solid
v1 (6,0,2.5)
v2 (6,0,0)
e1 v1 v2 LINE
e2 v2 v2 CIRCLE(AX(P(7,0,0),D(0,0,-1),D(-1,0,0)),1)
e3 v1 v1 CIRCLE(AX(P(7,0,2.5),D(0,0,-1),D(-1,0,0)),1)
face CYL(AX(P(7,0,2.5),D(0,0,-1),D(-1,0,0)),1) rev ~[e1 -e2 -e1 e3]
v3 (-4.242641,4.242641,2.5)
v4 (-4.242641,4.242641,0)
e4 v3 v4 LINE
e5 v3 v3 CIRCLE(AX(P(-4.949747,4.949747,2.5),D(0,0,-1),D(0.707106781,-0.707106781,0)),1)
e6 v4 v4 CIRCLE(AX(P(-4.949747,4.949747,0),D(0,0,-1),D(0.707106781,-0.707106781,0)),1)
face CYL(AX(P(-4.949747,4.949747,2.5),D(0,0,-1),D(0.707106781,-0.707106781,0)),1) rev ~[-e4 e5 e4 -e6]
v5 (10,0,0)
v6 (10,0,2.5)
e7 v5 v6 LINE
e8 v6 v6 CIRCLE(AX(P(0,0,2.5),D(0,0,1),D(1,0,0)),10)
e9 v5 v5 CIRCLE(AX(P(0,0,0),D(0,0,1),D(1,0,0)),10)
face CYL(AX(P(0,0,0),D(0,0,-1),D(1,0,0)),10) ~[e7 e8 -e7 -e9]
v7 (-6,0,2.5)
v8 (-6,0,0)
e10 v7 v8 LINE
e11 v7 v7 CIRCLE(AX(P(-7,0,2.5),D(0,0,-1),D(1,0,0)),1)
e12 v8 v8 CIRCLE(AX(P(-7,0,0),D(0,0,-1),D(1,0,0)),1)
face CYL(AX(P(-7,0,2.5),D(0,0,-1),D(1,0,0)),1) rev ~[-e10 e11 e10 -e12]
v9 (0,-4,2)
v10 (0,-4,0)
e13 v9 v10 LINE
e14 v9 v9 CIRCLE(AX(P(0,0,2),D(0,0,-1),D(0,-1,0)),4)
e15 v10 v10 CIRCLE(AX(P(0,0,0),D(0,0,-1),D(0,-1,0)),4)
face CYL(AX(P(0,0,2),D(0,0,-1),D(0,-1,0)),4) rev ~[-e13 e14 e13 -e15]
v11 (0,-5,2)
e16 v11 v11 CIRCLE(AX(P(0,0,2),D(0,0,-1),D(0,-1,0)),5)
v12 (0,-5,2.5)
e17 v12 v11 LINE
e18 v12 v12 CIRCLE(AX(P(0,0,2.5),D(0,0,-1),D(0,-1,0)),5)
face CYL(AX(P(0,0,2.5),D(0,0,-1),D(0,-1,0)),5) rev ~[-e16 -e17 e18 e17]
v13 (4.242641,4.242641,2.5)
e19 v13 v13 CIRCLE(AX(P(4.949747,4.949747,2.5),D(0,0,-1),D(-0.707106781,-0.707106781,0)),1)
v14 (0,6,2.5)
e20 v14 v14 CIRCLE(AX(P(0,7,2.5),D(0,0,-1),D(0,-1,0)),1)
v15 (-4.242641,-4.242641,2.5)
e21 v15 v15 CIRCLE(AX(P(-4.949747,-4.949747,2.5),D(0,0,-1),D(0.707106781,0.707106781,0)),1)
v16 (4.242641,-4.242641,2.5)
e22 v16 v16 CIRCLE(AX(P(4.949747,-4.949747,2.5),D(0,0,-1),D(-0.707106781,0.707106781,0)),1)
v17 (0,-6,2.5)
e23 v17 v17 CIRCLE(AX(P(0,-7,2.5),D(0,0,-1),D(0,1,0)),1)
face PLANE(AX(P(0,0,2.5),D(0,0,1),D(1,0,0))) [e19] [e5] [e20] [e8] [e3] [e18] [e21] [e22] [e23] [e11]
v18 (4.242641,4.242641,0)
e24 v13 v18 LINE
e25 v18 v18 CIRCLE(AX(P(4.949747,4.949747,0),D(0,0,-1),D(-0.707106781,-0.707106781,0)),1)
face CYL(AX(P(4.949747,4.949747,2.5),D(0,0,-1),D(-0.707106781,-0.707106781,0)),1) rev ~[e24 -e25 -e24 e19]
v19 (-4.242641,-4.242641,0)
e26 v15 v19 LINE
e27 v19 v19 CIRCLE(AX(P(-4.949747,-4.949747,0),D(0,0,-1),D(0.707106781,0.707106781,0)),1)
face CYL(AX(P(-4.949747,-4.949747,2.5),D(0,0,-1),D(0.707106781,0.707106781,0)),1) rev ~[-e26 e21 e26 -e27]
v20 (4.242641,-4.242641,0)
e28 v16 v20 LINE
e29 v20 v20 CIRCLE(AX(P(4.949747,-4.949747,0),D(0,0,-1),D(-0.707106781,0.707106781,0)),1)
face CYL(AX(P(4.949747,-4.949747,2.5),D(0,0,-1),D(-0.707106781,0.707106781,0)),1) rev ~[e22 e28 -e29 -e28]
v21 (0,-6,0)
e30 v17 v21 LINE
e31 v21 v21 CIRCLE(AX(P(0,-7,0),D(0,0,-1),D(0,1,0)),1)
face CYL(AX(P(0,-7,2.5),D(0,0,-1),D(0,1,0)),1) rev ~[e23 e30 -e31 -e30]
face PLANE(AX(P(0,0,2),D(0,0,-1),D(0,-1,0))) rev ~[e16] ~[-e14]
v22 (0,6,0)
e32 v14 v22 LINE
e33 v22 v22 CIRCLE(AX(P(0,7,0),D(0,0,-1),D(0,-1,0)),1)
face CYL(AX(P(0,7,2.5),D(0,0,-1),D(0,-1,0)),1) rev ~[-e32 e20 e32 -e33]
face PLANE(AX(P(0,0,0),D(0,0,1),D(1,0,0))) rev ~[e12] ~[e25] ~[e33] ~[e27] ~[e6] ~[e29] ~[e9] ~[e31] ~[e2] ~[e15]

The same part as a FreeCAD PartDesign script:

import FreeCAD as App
import Part
import Sketcher
from FreeCAD import Vector

doc = App.newDocument("Part")
body = doc.addObject("PartDesign::Body", "Body")

sketch1 = body.newObject("Sketcher::SketchObject", "Sketch")
sketch1.AttachmentSupport = (doc.getObject("XY_Plane"), [""])
sketch1.MapMode = "FlatFace"
sketch1.addGeometry(Part.Circle(Vector(0, 0, 0), Vector(0, 0, 1), 10), False)
sketch1.addConstraint(Sketcher.Constraint("Coincident", 0, 3, -1, 1))
sketch1.addConstraint(Sketcher.Constraint("Diameter", 0, 20.0))
pad1 = body.newObject("PartDesign::Pad", "Pad")
pad1.Profile = sketch1
pad1.Length = 2.5

sketch2 = body.newObject("Sketcher::SketchObject", "Sketch001")
sketch2.AttachmentSupport = (doc.getObject("XY_Plane"), [""])
sketch2.MapMode = "FlatFace"
sketch2.AttachmentOffset = App.Placement(Vector(0, 0, 2.5), App.Rotation())
sketch2.addGeometry(Part.Circle(Vector(0, 0, 0), Vector(0, 0, 1), 5), False)
sketch2.addConstraint(Sketcher.Constraint("Coincident", 0, 3, -1, 1))
sketch2.addConstraint(Sketcher.Constraint("Diameter", 0, 10.0))
doc.recompute()
hole = body.newObject("PartDesign::Hole", "Hole")
hole.Profile = sketch2
hole.ThreadType = "None"
hole.Diameter = 10
hole.DepthType = "Dimension"
hole.Depth = 0.5
hole.DrillPoint = "Flat"

sketch3 = body.newObject("Sketcher::SketchObject", "Sketch002")
sketch3.AttachmentSupport = (doc.getObject("XY_Plane"), [""])
sketch3.MapMode = "FlatFace"
sketch3.AttachmentOffset = App.Placement(Vector(0, 0, 2), App.Rotation())
sketch3.addGeometry(Part.Circle(Vector(0, 0, 0), Vector(0, 0, 1), 4), False)
sketch3.addConstraint(Sketcher.Constraint("Coincident", 0, 3, -1, 1))
sketch3.addConstraint(Sketcher.Constraint("Diameter", 0, 8.0))
doc.recompute()
hole2 = body.newObject("PartDesign::Hole", "Hole001")
hole2.Profile = sketch3
hole2.ThreadType = "None"
hole2.Diameter = 8
hole2.DepthType = "ThroughAll"

sketch4 = body.newObject("Sketcher::SketchObject", "Sketch003")
sketch4.AttachmentSupport = (doc.getObject("XY_Plane"), [""])
sketch4.MapMode = "FlatFace"
sketch4.AttachmentOffset = App.Placement(Vector(0, 0, 2.5), App.Rotation())
sketch4.addGeometry(Part.Circle(Vector(0, 7, 0), Vector(0, 0, 1), 1), False)
sketch4.addConstraint(Sketcher.Constraint("PointOnObject", 0, 3, -2))
sketch4.addConstraint(Sketcher.Constraint("Diameter", 0, 2.0))
sketch4.addConstraint(Sketcher.Constraint("DistanceY", -1, 1, 0, 3, 7.0))
doc.recompute()
hole3 = body.newObject("PartDesign::Hole", "Hole002")
hole3.Profile = sketch4
hole3.ThreadType = "None"
hole3.Diameter = 2
hole3.DepthType = "ThroughAll"
doc.recompute()

polarpattern = body.newObject("PartDesign::PolarPattern", "PolarPattern")
polarpattern.Originals = [hole3]
polarpattern.Axis = (doc.getObject("Z_Axis"), [""])
polarpattern.Angle = 360
polarpattern.Occurrences = 8
body.Tip = polarpattern

doc.recompute()
